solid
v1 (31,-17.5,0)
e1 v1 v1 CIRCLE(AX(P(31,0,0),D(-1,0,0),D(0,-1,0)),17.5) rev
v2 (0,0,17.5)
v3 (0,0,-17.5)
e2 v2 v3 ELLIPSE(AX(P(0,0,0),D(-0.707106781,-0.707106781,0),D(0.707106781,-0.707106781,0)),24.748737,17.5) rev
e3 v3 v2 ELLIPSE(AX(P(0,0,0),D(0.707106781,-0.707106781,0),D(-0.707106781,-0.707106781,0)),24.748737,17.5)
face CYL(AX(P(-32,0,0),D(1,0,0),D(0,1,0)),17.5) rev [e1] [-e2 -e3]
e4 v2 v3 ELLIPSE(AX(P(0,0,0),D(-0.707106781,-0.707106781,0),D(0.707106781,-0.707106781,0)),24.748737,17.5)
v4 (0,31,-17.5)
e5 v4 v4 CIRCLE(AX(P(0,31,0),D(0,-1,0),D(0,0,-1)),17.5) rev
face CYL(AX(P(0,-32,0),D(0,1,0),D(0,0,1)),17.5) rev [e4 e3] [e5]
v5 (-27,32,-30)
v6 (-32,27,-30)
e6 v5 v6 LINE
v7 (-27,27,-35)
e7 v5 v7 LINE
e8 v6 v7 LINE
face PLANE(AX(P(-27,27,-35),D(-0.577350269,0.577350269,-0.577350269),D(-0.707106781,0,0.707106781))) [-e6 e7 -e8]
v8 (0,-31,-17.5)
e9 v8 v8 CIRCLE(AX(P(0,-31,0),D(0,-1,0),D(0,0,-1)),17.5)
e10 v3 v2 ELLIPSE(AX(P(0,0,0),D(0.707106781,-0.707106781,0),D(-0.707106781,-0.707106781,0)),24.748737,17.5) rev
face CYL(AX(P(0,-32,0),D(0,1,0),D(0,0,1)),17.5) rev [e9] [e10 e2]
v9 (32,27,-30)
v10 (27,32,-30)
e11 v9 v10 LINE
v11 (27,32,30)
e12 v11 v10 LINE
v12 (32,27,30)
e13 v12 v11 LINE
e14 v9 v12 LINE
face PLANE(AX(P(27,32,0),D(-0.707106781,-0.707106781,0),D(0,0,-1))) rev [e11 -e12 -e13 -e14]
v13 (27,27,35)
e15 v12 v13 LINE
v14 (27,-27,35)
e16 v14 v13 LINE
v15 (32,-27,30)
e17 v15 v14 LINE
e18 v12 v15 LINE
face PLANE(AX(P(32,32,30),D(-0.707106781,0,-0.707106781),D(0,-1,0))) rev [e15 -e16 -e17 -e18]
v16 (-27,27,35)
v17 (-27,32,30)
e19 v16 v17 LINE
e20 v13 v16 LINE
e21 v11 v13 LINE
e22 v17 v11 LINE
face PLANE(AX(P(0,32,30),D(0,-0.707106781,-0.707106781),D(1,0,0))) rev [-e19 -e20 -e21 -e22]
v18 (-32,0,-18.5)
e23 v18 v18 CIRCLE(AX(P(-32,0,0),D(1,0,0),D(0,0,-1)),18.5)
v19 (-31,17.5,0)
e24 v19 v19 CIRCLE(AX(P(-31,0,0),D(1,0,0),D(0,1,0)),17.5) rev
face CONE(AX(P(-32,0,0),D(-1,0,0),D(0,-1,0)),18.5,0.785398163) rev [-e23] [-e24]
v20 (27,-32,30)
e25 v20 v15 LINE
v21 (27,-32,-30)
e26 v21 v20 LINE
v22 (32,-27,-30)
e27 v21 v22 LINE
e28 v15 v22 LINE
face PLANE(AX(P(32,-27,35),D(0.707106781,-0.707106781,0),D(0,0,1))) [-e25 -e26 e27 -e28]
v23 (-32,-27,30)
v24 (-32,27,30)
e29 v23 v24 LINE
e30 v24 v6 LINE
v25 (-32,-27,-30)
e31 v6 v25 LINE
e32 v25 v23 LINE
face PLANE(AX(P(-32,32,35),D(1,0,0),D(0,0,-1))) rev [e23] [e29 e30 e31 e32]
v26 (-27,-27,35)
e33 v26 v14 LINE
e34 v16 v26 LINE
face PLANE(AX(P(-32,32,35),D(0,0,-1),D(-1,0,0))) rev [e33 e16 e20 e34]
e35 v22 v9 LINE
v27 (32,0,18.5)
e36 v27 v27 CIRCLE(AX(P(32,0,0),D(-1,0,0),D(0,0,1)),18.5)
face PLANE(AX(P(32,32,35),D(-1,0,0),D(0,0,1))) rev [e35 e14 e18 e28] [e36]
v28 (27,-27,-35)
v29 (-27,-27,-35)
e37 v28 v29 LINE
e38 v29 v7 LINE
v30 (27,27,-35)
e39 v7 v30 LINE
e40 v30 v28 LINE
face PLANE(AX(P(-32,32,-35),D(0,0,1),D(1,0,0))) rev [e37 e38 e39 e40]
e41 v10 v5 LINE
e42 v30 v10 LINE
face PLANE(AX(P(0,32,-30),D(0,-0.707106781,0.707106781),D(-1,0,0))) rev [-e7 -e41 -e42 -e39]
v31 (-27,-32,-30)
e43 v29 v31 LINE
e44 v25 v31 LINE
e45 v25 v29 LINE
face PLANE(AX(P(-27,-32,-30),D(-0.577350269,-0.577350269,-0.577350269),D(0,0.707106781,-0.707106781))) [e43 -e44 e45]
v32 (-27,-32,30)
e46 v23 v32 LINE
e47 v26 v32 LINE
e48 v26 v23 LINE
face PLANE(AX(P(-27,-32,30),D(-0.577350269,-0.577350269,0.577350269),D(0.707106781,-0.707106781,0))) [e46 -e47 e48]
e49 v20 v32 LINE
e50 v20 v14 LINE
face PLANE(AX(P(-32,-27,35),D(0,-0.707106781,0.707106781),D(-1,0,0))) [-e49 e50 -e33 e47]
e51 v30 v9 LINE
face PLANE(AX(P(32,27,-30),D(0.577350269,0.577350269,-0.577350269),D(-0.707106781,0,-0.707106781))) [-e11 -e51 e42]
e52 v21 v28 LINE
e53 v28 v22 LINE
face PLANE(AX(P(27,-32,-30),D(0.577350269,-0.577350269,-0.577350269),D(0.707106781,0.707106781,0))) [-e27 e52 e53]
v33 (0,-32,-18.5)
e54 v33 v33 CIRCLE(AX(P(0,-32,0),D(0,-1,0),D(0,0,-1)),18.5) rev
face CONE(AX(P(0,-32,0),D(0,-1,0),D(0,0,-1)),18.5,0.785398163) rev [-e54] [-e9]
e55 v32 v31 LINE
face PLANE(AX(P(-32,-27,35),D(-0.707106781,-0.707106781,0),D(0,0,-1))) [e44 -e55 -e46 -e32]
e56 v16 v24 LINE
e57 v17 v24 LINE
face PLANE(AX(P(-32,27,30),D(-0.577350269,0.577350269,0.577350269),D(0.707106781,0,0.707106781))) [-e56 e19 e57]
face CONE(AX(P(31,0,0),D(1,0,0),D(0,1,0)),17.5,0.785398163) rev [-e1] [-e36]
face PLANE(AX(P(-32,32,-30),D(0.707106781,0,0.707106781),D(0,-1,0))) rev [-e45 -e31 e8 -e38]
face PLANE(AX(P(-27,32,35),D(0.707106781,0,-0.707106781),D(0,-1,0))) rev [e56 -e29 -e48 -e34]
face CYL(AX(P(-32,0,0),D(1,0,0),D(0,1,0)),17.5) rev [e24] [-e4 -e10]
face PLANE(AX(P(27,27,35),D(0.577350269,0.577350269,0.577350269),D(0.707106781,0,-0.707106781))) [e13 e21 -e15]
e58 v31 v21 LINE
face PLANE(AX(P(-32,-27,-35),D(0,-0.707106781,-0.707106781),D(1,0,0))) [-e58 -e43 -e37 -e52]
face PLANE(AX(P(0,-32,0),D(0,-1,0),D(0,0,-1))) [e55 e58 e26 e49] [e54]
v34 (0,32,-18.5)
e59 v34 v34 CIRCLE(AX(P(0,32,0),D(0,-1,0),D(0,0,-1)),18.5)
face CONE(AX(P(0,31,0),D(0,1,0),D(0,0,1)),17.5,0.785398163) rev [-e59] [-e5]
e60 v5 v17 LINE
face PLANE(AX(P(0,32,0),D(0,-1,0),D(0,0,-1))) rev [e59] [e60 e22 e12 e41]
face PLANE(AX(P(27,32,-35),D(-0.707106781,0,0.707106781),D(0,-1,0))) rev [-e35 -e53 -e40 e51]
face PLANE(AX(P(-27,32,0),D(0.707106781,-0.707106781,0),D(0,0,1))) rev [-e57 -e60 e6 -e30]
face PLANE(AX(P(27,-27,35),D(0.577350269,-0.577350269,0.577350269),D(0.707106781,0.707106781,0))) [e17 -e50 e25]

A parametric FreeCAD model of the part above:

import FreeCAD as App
import Part
import Sketcher

V = App.Vector
Q = App.Units.Quantity


def edges_at(feature, points):
    """Names of the edges that pass closest to the given points."""
    edges = feature.Shape.Edges
    near = lambda p: min(range(len(edges)), key=lambda i: edges[i].distToShape(Part.Vertex(*p))[0])
    return sorted({f"Edge{near(p) + 1}" for p in points})

doc = App.newDocument("Part")
params = doc.addObject("Spreadsheet::Sheet", "Params")
for row, (alias, value) in enumerate([
    ("sketch1_width", "64 mm"),
    ("sketch1_height", "70 mm"),
    ("pad1_length", "64 mm"),
    ("sketch2_diameter", "35 mm"),
    ("chamfer_size", "5 mm"),
    ("chamfer2_size", "1 mm"),
], start=1):
    params.set(f"A{row}", alias)
    params.set(f"B{row}", "=" + value)
    params.setAlias(f"B{row}", alias)

body = doc.addObject("PartDesign::Body", "Body")

# Sketch on XZ plane
sketch1 = body.newObject("Sketcher::SketchObject", "Sketch")
sketch1.AttachmentSupport = (doc.getObject("XZ_Plane"), [""])
sketch1.MapMode = "FlatFace"
sketch1.addGeometry([
    Part.LineSegment(V(-32, -35, 0), V(-32, 35, 0)),
    Part.LineSegment(V(-32, 35, 0), V(32, 35, 0)),
    Part.LineSegment(V(32, 35, 0), V(32, -35, 0)),
    Part.LineSegment(V(32, -35, 0), V(-32, -35, 0)),
], False)
sketch1.addConstraint([
    Sketcher.Constraint("Coincident", 0, 2, 1, 1),
    Sketcher.Constraint("Coincident", 1, 2, 2, 1),
    Sketcher.Constraint("Coincident", 2, 2, 3, 1),
    Sketcher.Constraint("Coincident", 3, 2, 0, 1),
    Sketcher.Constraint("Vertical", 0),
    Sketcher.Constraint("Horizontal", 1),
    Sketcher.Constraint("Vertical", 2),
    Sketcher.Constraint("Horizontal", 3),
    Sketcher.Constraint("Symmetric", 0, 2, 2, 2, -1, 1),
    Sketcher.Constraint("DistanceX", 1, 1, 1, 2, Q("64 mm")),
    Sketcher.Constraint("DistanceY", 0, 1, 0, 2, Q("70 mm")),
])
sketch1.setExpression("Constraints[9]", "Params.sketch1_width")
sketch1.setExpression("Constraints[10]", "Params.sketch1_height")
pad1 = body.newObject("PartDesign::Pad", "Pad")
pad1.Profile = sketch1
pad1.setExpression("Length", "Params.pad1_length")
pad1.Midplane = True

# Sketch on XZ plane
sketch2 = body.newObject("Sketcher::SketchObject", "Sketch001")
sketch2.AttachmentSupport = (doc.getObject("XZ_Plane"), [""])
sketch2.MapMode = "FlatFace"
sketch2.AttachmentOffset = App.Placement(V(0, 0, -32), App.Rotation())
sketch2.addGeometry(Part.Circle(V(0, 0, 0), V(0, 0, 1), 18), False)
sketch2.addConstraint([
    Sketcher.Constraint("Coincident", 0, 3, -1, 1),
    Sketcher.Constraint("Diameter", 0, Q("35 mm")),
])
sketch2.setExpression("Constraints[1]", "Params.sketch2_diameter")
pocket1 = body.newObject("PartDesign::Pocket", "Pocket")
pocket1.Profile = sketch2
pocket1.Type = "ThroughAll"
pocket1.Reversed = True
doc.recompute()

polarpattern = body.newObject("PartDesign::PolarPattern", "PolarPattern")
polarpattern.Originals = [pocket1]
polarpattern.Axis = (doc.getObject("Z_Axis"), [""])
polarpattern.Angle = 360
polarpattern.Occurrences = 4
body.Tip = polarpattern
doc.recompute()

chamfer = body.newObject("PartDesign::Chamfer", "Chamfer")
chamfer.Base = (polarpattern, edges_at(polarpattern, [
    (-32, 32, 0),
    (0, 32, 35),
    (32, 32, 0),
    (0, -32, 35),
    (-32, -32, 0),
    (0, -32, -35),
    (32, -32, 0),
    (32, 0, 35),
    (-32, 0, 35),
    (-32, 0, -35),
    (32, 0, -35),
    (0, 32, -35),
]))
chamfer.setExpression("Size", "Params.chamfer_size")
doc.recompute()

chamfer2 = body.newObject("PartDesign::Chamfer", "Chamfer001")
chamfer2.Base = (chamfer, edges_at(chamfer, [
    (0, -32, -17.5),
    (0, 32, -17.5),
    (-32, 0, -17.5),
    (32, 0, -17.5),
]))
chamfer2.setExpression("Size", "Params.chamfer2_size")

doc.recompute()
